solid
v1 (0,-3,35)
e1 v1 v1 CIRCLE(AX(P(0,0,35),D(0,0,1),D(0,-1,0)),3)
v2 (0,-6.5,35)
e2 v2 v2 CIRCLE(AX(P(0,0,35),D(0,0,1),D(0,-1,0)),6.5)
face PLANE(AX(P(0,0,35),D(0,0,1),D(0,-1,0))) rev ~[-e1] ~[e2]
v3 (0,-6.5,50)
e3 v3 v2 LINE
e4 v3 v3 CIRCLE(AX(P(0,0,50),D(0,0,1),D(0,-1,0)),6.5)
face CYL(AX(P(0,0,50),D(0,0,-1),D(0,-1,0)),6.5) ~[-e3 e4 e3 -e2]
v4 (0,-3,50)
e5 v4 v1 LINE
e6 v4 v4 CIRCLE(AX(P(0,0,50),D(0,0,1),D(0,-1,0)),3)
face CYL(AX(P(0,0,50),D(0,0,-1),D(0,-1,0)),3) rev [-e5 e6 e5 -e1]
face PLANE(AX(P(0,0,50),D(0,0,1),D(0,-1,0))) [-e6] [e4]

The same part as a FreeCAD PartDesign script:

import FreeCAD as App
import Part
import Sketcher
Q = App.Units.Quantity

doc = App.newDocument("Part")
params = doc.addObject("Spreadsheet::Sheet", "Params")
for row, (alias, value) in enumerate([
    ("sketch1_height", "15 mm"),
    ("sketch1_width", "3.5 mm"),
    ("revolution_angle", "360 deg"),
], start=1):
    params.set(f"A{row}", alias)
    params.set(f"B{row}", "=" + value)
    params.setAlias(f"B{row}", alias)

body = doc.addObject("PartDesign::Body", "Body")

# Sketch on YZ plane
sketch1 = body.newObject("Sketcher::SketchObject", "Sketch")
sketch1.AttachmentSupport = (doc.getObject("YZ_Plane"), [""])
sketch1.MapMode = "FlatFace"
sketch1.addGeometry([
    Part.LineSegment(App.Vector(-3, 50, 0), App.Vector(-6.5, 50, 0)),
    Part.LineSegment(App.Vector(-6.5, 50, 0), App.Vector(-6.5, 35, 0)),
    Part.LineSegment(App.Vector(-6.5, 35, 0), App.Vector(-3, 35, 0)),
    Part.LineSegment(App.Vector(-3, 35, 0), App.Vector(-3, 50, 0)),
], False)
sketch1.addConstraint([
    Sketcher.Constraint("Coincident", 0, 2, 1, 1),
    Sketcher.Constraint("Coincident", 1, 2, 2, 1),
    Sketcher.Constraint("Coincident", 2, 2, 3, 1),
    Sketcher.Constraint("Coincident", 3, 2, 0, 1),
    Sketcher.Constraint("Horizontal", 0),
    Sketcher.Constraint("Vertical", 1),
    Sketcher.Constraint("Horizontal", 2),
    Sketcher.Constraint("Vertical", 3),
    Sketcher.Constraint("DistanceY", 1, 2, 1, 1, Q("15 mm")),
    Sketcher.Constraint("DistanceX", 0, 2, 0, 1, Q("3.5 mm")),
    Sketcher.Constraint("DistanceY", -1, 1, 0, 2, Q("50 mm")),
    Sketcher.Constraint("DistanceX", 2, 2, -1, 1, Q("3 mm")),
])
sketch1.setExpression("Constraints[8]", "Params.sketch1_height")
sketch1.setExpression("Constraints[9]", "Params.sketch1_width")
revolution = body.newObject("PartDesign::Revolution", "Revolution")
revolution.Profile = sketch1
revolution.ReferenceAxis = (sketch1, ["V_Axis"])
revolution.setExpression("Angle", "Params.revolution_angle")

doc.recompute()
